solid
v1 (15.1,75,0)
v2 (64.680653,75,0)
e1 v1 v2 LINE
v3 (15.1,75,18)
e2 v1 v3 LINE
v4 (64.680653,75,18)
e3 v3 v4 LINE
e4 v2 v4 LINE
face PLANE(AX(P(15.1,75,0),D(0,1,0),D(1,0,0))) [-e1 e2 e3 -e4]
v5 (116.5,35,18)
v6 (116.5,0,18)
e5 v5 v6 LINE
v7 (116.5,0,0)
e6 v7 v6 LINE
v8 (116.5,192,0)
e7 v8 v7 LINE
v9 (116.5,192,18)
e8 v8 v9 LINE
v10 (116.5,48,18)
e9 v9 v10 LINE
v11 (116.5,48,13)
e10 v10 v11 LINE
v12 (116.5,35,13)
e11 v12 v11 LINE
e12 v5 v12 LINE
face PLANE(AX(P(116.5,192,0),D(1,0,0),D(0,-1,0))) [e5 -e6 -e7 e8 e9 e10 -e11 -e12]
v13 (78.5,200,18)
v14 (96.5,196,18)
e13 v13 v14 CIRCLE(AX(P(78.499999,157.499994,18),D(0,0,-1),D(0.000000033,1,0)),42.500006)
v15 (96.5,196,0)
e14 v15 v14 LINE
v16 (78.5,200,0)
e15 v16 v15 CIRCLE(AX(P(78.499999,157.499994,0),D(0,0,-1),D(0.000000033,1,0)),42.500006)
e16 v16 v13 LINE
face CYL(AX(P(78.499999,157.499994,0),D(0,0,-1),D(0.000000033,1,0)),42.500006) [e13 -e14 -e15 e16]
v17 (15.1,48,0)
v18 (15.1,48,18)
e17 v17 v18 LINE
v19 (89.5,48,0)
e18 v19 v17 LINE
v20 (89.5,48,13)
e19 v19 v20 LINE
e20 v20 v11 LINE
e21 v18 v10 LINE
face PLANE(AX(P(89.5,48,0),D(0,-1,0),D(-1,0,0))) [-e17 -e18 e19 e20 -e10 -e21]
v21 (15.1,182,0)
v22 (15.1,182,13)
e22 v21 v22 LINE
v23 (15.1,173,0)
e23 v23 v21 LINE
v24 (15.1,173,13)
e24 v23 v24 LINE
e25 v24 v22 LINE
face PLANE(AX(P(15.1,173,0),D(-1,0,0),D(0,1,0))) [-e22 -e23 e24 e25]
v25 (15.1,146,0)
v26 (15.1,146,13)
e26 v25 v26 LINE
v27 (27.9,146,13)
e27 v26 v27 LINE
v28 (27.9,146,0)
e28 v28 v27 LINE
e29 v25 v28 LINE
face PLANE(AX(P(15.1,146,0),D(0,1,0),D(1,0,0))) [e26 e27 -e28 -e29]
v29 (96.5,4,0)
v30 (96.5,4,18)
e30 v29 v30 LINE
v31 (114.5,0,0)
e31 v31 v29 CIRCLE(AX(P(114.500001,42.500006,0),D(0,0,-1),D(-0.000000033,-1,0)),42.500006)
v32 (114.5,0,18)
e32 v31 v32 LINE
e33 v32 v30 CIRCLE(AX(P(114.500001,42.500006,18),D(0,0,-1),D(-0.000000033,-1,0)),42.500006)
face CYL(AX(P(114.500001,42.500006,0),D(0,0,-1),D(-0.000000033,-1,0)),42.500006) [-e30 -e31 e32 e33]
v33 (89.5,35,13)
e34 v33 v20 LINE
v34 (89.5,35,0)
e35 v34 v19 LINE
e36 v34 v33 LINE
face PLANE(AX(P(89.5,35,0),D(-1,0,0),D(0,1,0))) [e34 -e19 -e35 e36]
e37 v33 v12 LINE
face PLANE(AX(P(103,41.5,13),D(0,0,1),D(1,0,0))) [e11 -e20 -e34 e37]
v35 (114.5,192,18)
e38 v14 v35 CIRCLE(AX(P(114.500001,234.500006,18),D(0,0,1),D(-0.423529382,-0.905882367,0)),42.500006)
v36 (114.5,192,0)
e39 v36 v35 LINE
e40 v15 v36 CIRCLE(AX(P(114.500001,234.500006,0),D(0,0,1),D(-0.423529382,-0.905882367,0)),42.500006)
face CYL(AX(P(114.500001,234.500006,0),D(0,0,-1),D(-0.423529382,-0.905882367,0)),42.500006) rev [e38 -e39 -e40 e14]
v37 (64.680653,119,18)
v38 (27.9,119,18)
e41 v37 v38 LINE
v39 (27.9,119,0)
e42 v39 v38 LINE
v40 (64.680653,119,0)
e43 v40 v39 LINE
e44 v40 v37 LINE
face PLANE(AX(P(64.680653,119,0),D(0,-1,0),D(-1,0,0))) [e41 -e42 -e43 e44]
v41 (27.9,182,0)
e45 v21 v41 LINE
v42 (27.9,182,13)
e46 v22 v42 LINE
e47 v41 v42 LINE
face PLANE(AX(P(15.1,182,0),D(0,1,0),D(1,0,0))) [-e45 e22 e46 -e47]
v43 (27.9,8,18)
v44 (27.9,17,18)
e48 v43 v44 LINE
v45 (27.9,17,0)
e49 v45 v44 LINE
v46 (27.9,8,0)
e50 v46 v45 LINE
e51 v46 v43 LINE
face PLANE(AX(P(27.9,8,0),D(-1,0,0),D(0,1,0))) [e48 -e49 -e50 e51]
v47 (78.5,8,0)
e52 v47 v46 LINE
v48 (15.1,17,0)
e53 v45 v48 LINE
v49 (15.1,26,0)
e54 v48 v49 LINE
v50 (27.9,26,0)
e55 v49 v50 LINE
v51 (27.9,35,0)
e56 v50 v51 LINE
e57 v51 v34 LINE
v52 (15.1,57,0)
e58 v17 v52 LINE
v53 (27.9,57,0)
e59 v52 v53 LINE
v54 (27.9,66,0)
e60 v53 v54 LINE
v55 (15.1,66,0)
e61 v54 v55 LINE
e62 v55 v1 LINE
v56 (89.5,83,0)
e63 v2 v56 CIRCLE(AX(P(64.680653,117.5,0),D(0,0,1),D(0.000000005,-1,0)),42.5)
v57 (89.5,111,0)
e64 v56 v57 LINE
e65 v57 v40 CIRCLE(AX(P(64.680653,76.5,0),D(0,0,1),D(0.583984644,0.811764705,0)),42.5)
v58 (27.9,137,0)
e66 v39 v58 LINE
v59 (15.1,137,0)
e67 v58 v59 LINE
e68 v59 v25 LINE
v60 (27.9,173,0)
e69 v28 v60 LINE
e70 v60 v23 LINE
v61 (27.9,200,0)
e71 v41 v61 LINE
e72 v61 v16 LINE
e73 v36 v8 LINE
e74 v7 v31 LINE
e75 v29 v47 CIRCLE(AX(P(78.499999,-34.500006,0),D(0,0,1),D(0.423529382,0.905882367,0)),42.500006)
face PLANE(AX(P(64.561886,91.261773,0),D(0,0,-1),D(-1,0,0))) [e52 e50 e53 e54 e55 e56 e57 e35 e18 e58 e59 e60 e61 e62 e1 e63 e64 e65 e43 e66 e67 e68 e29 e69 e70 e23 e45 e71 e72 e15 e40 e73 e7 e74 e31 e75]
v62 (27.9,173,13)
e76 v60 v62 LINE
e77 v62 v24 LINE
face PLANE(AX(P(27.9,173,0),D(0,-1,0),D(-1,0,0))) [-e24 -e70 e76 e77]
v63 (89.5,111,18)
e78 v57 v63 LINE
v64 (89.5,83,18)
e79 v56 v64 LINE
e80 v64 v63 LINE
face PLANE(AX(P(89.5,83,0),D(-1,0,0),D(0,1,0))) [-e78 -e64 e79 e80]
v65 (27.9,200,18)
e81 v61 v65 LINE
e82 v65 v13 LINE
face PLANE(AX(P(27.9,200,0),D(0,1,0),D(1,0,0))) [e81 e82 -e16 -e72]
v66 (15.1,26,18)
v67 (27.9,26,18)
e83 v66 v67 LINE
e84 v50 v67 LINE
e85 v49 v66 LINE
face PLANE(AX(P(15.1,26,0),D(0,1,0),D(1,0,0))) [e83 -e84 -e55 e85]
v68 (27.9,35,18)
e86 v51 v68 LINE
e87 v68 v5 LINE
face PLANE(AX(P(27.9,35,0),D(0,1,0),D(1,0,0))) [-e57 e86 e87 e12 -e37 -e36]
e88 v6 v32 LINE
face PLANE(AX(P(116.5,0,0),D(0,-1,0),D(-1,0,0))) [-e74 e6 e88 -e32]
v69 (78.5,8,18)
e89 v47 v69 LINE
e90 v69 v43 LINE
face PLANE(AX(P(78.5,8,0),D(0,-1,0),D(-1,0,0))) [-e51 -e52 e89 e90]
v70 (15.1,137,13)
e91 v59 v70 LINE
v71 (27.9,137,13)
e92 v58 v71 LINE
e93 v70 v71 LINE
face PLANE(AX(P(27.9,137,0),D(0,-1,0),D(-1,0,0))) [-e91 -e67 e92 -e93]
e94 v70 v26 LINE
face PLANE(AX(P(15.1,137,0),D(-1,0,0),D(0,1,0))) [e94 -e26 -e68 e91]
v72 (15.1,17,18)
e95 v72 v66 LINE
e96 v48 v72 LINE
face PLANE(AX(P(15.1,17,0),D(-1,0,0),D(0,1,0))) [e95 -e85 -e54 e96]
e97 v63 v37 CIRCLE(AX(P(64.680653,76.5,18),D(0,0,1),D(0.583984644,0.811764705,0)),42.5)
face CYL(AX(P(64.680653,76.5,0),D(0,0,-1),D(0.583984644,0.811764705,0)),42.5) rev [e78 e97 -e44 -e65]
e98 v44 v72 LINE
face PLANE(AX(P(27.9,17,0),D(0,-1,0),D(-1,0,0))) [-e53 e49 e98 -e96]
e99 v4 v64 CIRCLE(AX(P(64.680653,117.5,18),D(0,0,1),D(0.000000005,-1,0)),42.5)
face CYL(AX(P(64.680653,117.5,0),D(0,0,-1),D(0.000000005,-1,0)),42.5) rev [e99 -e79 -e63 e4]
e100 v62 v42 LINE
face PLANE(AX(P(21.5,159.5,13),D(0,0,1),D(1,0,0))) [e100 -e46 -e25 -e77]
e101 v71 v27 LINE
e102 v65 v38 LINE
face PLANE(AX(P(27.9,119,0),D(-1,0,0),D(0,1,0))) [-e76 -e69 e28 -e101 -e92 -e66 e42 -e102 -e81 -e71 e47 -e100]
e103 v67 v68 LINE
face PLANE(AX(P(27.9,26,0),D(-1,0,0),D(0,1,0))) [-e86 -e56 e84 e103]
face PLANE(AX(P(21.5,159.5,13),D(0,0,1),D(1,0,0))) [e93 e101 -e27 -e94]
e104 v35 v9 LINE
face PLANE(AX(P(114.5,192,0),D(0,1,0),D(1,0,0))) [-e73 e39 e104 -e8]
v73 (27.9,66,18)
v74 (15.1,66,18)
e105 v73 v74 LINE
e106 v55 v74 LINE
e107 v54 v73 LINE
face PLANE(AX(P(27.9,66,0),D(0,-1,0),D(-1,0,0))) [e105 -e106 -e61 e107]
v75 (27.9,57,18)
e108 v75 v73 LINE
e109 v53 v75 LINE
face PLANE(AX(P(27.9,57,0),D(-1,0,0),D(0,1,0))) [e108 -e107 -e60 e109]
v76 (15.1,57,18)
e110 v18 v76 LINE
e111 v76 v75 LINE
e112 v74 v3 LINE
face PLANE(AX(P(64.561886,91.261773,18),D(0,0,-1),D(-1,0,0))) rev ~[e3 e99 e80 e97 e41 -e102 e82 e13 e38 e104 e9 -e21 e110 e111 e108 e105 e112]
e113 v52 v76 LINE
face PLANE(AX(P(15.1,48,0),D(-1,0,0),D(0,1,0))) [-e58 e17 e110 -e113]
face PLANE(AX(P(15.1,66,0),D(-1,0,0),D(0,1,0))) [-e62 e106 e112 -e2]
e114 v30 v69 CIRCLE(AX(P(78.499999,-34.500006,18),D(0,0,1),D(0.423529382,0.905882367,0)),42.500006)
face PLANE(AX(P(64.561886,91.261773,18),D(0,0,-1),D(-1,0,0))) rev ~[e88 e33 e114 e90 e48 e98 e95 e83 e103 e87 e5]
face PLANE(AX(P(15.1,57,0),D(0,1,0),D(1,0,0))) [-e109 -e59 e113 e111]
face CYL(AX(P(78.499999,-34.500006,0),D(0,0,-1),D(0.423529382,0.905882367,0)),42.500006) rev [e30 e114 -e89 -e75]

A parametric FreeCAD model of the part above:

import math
import FreeCAD as App
import Part
import Sketcher
from FreeCAD import Vector


def add_polygon(sketch, points):
    """Adds a closed chain of lines whose ends are joined by coincident constraints."""
    first, n = sketch.GeometryCount, len(points)
    for a, b in zip(points, points[1:] + points[:1]):
        sketch.addGeometry(Part.LineSegment(App.Vector(*a, 0), App.Vector(*b, 0)), False)
    for i in range(n):
        sketch.addConstraint(Sketcher.Constraint("Coincident", first + i, 2, first + (i + 1) % n, 1))

doc = App.newDocument("Part")
body = doc.addObject("PartDesign::Body", "Body")

# Sketch on YZ plane
sketch1 = doc.addObject("Sketcher::SketchObject", "Sketch")
body.addObject(sketch1)
sketch1.AttachmentSupport = (doc.YZ_Plane, [""])
sketch1.MapMode = "FlatFace"
sketch1.addGeometry([
    Part.ArcOfCircle(Part.Circle(Vector(93, 234.5, 0), Vector(0, 0, 1), 42.5), math.radians(-115), math.radians(-90)),  # 0
    Part.ArcOfCircle(Part.Circle(Vector(57, 157.5, 0), Vector(0, 0, 1), 42.5), math.radians(65), math.radians(90)),  # 1
    Part.LineSegment(Vector(57, 200, 0), Vector(6.4, 200, 0)),  # 2
    Part.LineSegment(Vector(6.4, 200, 0), Vector(6.4, 182, 0)),  # 3
    Part.LineSegment(Vector(6.4, 182, 0), Vector(-6.4, 182, 0)),  # 4
    Part.LineSegment(Vector(-6.4, 182, 0), Vector(-6.4, 173, 0)),  # 5
    Part.LineSegment(Vector(-6.4, 173, 0), Vector(6.4, 173, 0)),  # 6
    Part.LineSegment(Vector(6.4, 173, 0), Vector(6.4, 146, 0)),  # 7
    Part.LineSegment(Vector(6.4, 146, 0), Vector(-6.4, 146, 0)),  # 8
    Part.LineSegment(Vector(-6.4, 146, 0), Vector(-6.4, 137, 0)),  # 9
    Part.LineSegment(Vector(-6.4, 137, 0), Vector(6.4, 137, 0)),  # 10
    Part.LineSegment(Vector(6.4, 137, 0), Vector(6.4, 119, 0)),  # 11
    Part.LineSegment(Vector(6.4, 119, 0), Vector(43.2, 119, 0)),  # 12
    Part.ArcOfCircle(Part.Circle(Vector(43.2, 76.5, 0), Vector(0, 0, 1), 42.5), math.radians(54), math.radians(90)),  # 13
    Part.LineSegment(Vector(68, 111, 0), Vector(68, 83, 0)),  # 14
    Part.ArcOfCircle(Part.Circle(Vector(43.2, 117.5, 0), Vector(0, 0, 1), 42.5), math.radians(-90), math.radians(-54)),  # 15
    Part.LineSegment(Vector(43.2, 75, 0), Vector(-6.4, 75, 0)),  # 16
    Part.LineSegment(Vector(-6.4, 75, 0), Vector(-6.4, 66, 0)),  # 17
    Part.LineSegment(Vector(-6.4, 66, 0), Vector(6.4, 66, 0)),  # 18
    Part.LineSegment(Vector(6.4, 66, 0), Vector(6.4, 57, 0)),  # 19
    Part.LineSegment(Vector(6.4, 57, 0), Vector(-6.4, 57, 0)),  # 20
    Part.LineSegment(Vector(-6.4, 57, 0), Vector(-6.4, 48, 0)),  # 21
    Part.LineSegment(Vector(-6.4, 48, 0), Vector(68, 48, 0)),  # 22
    Part.LineSegment(Vector(68, 48, 0), Vector(68, 35, 0)),  # 23
    Part.LineSegment(Vector(68, 35, 0), Vector(6.4, 35, 0)),  # 24
    Part.LineSegment(Vector(6.4, 35, 0), Vector(6.4, 26, 0)),  # 25
    Part.LineSegment(Vector(6.4, 26, 0), Vector(-6.4, 26, 0)),  # 26
    Part.LineSegment(Vector(-6.4, 26, 0), Vector(-6.4, 17, 0)),  # 27
    Part.LineSegment(Vector(-6.4, 17, 0), Vector(6.4, 17, 0)),  # 28
    Part.LineSegment(Vector(6.4, 17, 0), Vector(6.4, 8, 0)),  # 29
    Part.LineSegment(Vector(6.4, 8, 0), Vector(57, 8, 0)),  # 30
    Part.ArcOfCircle(Part.Circle(Vector(57, -34.5, 0), Vector(0, 0, 1), 42.5), math.radians(65), math.radians(90)),  # 31
    Part.ArcOfCircle(Part.Circle(Vector(93, 42.5, 0), Vector(0, 0, 1), 42.5), math.radians(-115), math.radians(-90)),  # 32
    Part.LineSegment(Vector(93, 0, 0), Vector(95, 0, 0)),  # 33
    Part.LineSegment(Vector(95, 0, 0), Vector(95, 192, 0)),  # 34
    Part.LineSegment(Vector(95, 192, 0), Vector(93, 192, 0)),  # 35
], False)
sketch1.addConstraint([
    Sketcher.Constraint("Tangent", 0, 1, 1, 1),
    Sketcher.Constraint("Tangent", 1, 2, 2, 1),
    Sketcher.Constraint("Coincident", 2, 2, 3, 1),
    Sketcher.Constraint("Coincident", 3, 2, 4, 1),
    Sketcher.Constraint("Coincident", 4, 2, 5, 1),
    Sketcher.Constraint("Coincident", 5, 2, 6, 1),
    Sketcher.Constraint("Coincident", 6, 2, 7, 1),
    Sketcher.Constraint("Coincident", 7, 2, 8, 1),
    Sketcher.Constraint("Coincident", 8, 2, 9, 1),
    Sketcher.Constraint("Coincident", 9, 2, 10, 1),
    Sketcher.Constraint("Coincident", 10, 2, 11, 1),
    Sketcher.Constraint("Coincident", 11, 2, 12, 1),
    Sketcher.Constraint("Tangent", 12, 2, 13, 2),
    Sketcher.Constraint("Coincident", 13, 1, 14, 1),
    Sketcher.Constraint("Coincident", 14, 2, 15, 2),
    Sketcher.Constraint("Tangent", 15, 1, 16, 1),
    Sketcher.Constraint("Coincident", 16, 2, 17, 1),
    Sketcher.Constraint("Coincident", 17, 2, 18, 1),
    Sketcher.Constraint("Coincident", 18, 2, 19, 1),
    Sketcher.Constraint("Coincident", 19, 2, 20, 1),
    Sketcher.Constraint("Coincident", 20, 2, 21, 1),
    Sketcher.Constraint("Coincident", 21, 2, 22, 1),
    Sketcher.Constraint("Coincident", 22, 2, 23, 1),
    Sketcher.Constraint("Coincident", 23, 2, 24, 1),
    Sketcher.Constraint("Coincident", 24, 2, 25, 1),
    Sketcher.Constraint("Coincident", 25, 2, 26, 1),
    Sketcher.Constraint("Coincident", 26, 2, 27, 1),
    Sketcher.Constraint("Coincident", 27, 2, 28, 1),
    Sketcher.Constraint("Coincident", 28, 2, 29, 1),
    Sketcher.Constraint("Coincident", 29, 2, 30, 1),
    Sketcher.Constraint("Tangent", 30, 2, 31, 2),
    Sketcher.Constraint("Tangent", 31, 1, 32, 1),
    Sketcher.Constraint("Tangent", 32, 2, 33, 1),
    Sketcher.Constraint("Coincident", 33, 2, 34, 1),
    Sketcher.Constraint("Coincident", 34, 2, 35, 1),
    Sketcher.Constraint("Tangent", 35, 2, 0, 2),
    Sketcher.Constraint("Horizontal", 2),
    Sketcher.Constraint("Vertical", 3),
    Sketcher.Constraint("Horizontal", 4),
    Sketcher.Constraint("Vertical", 5),
    Sketcher.Constraint("Horizontal", 6),
    Sketcher.Constraint("Vertical", 7),
    Sketcher.Constraint("Horizontal", 8),
    Sketcher.Constraint("Vertical", 9),
    Sketcher.Constraint("Horizontal", 10),
    Sketcher.Constraint("Vertical", 11),
    Sketcher.Constraint("Horizontal", 12),
    Sketcher.Constraint("Vertical", 14),
    Sketcher.Constraint("Horizontal", 16),
    Sketcher.Constraint("Vertical", 17),
    Sketcher.Constraint("Horizontal", 18),
    Sketcher.Constraint("Vertical", 19),
    Sketcher.Constraint("Horizontal", 20),
    Sketcher.Constraint("Vertical", 21),
    Sketcher.Constraint("Horizontal", 22),
    Sketcher.Constraint("Vertical", 23),
    Sketcher.Constraint("Horizontal", 24),
    Sketcher.Constraint("Vertical", 25),
    Sketcher.Constraint("Horizontal", 26),
    Sketcher.Constraint("Vertical", 27),
    Sketcher.Constraint("Horizontal", 28),
    Sketcher.Constraint("Vertical", 29),
    Sketcher.Constraint("Horizontal", 30),
    Sketcher.Constraint("Horizontal", 33),
    Sketcher.Constraint("Vertical", 34),
    Sketcher.Constraint("Horizontal", 35),
    Sketcher.Constraint("Equal", 0, 1),
    Sketcher.Constraint("Equal", 13, 15),
    Sketcher.Constraint("Equal", 1, 31),
    Sketcher.Constraint("Equal", 31, 32),
    Sketcher.Constraint("PointOnObject", 32, 2, -1),
    Sketcher.Constraint("Vertical", 13, 3, 15, 3),
    Sketcher.Constraint("Vertical", 1, 3, 31, 3),
    Sketcher.Constraint("Vertical", 0, 3, 32, 3),
    Sketcher.Constraint("Vertical", 3, 2, 6, 2),
    Sketcher.Constraint("Vertical", 5, 2, 8, 2),
    Sketcher.Constraint("Vertical", 7, 2, 10, 2),
    Sketcher.Constraint("Vertical", 9, 2, 16, 2),
    Sketcher.Constraint("Vertical", 11, 2, 18, 2),
    Sketcher.Constraint("Vertical", 17, 2, 20, 2),
    Sketcher.Constraint("Vertical", 14, 2, 22, 2),
    Sketcher.Constraint("Vertical", 19, 2, 24, 2),
    Sketcher.Constraint("Vertical", 21, 2, 26, 2),
    Sketcher.Constraint("Vertical", 25, 2, 28, 2),
    Sketcher.Constraint("Equal", 5, 9),
    Sketcher.Constraint("Equal", 3, 11),
    Sketcher.Constraint("Equal", 9, 17),
    Sketcher.Constraint("Equal", 17, 19),
    Sketcher.Constraint("Equal", 19, 21),
    Sketcher.Constraint("Equal", 21, 25),
    Sketcher.Constraint("Equal", 25, 27),
    Sketcher.Constraint("Equal", 27, 29),
    Sketcher.Constraint("Radius", 13, 42.5),
    Sketcher.Constraint("DistanceX", 33, 1, 33, 2, 2.0),
    Sketcher.Constraint("DistanceY", 3, 2, 3, 1, 18.0),
    Sketcher.Constraint("DistanceY", 5, 2, 5, 1, 9.0),
    Sketcher.Constraint("DistanceY", 7, 2, 7, 1, 27.0),
    Sketcher.Constraint("DistanceY", 14, 2, 14, 1, 28.0),
    Sketcher.Constraint("DistanceY", 23, 2, 23, 1, 13.0),
    Sketcher.Constraint("DistanceY", 34, 1, 34, 2, 192.0),
    Sketcher.Constraint("DistanceX", 2, 2, 2, 1, 50.6),
    Sketcher.Constraint("DistanceX", 4, 2, 4, 1, 12.8),
    Sketcher.Constraint("DistanceX", 22, 1, 22, 2, 74.4),
    Sketcher.Constraint("DistanceX", -1, 1, 0, 3, 93.000001),
    Sketcher.Constraint("DistanceX", -1, 1, 1, 3, 56.999999),
    Sketcher.Constraint("DistanceY", -1, 1, 1, 2, 200.0),
])
pad1 = doc.addObject("PartDesign::Pad", "Pad")
body.addObject(pad1)
pad1.Profile = sketch1
pad1.Length = 18

# Sketch on YZ plane
sketch2 = doc.addObject("Sketcher::SketchObject", "Sketch001")
body.addObject(sketch2)
sketch2.AttachmentSupport = (doc.YZ_Plane, [""])
sketch2.MapMode = "FlatFace"
sketch2.AttachmentOffset = App.Placement(Vector(0, 0, 18), App.Rotation())
add_polygon(sketch2, [(-6, 182), (-6, 137), (6, 137), (6, 182)])  # lines 0-3
sketch2.addConstraint([
    Sketcher.Constraint("Vertical", 0),
    Sketcher.Constraint("Horizontal", 1),
    Sketcher.Constraint("Vertical", 2),
    Sketcher.Constraint("Horizontal", 3),
    Sketcher.Constraint("DistanceY", 0, 2, 0, 1, 45.0),
    Sketcher.Constraint("DistanceX", 1, 1, 1, 2, 12.8),
    Sketcher.Constraint("DistanceY", -1, 1, 0, 2, 137.0),
    Sketcher.Constraint("DistanceX", 0, 2, -1, 1, 6.4),
])
pocket1 = doc.addObject("PartDesign::Pocket", "Pocket")
body.addObject(pocket1)
pocket1.Profile = sketch2
pocket1.Length = 5

# Sketch on YZ plane
sketch3 = doc.addObject("Sketcher::SketchObject", "Sketch002")
body.addObject(sketch3)
sketch3.AttachmentSupport = (doc.YZ_Plane, [""])
sketch3.MapMode = "FlatFace"
sketch3.AttachmentOffset = App.Placement(Vector(0, 0, 18), App.Rotation())
add_polygon(sketch3, [(68, 48), (68, 35), (95, 35), (95, 48)])  # lines 0-3
sketch3.addConstraint([
    Sketcher.Constraint("Vertical", 0),
    Sketcher.Constraint("Horizontal", 1),
    Sketcher.Constraint("Vertical", 2),
    Sketcher.Constraint("Horizontal", 3),
    Sketcher.Constraint("DistanceX", 1, 1, 1, 2, 27.0),
    Sketcher.Constraint("DistanceY", 0, 2, 0, 1, 13.0),
    Sketcher.Constraint("DistanceX", -1, 1, 0, 2, 68.0),
    Sketcher.Constraint("DistanceY", -1, 1, 0, 2, 35.0),
])
pocket2 = doc.addObject("PartDesign::Pocket", "Pocket001")
body.addObject(pocket2)
pocket2.Profile = sketch3
pocket2.Length = 5
body2 = doc.addObject("PartDesign::Body", "Body001")
doc.recompute()

body.Placement = App.Placement(Vector(0, 0, 0), App.Rotation(Vector(0, 1, 0), 270))
boolean = doc.addObject("PartDesign::Boolean", "Boolean")
body2.addObject(boolean)
boolean.Type = "Fuse"
boolean.addObjects([body])
body3 = doc.addObject("PartDesign::Body", "Body002")
doc.recompute()

body2.Placement = App.Placement(Vector(21.5, 0, 0), App.Rotation(Vector(0, 0, 1), 270))
boolean2 = doc.addObject("PartDesign::Boolean", "Boolean001")
body3.addObject(boolean2)
boolean2.Type = "Fuse"
boolean2.addObjects([body2])

doc.recompute()
